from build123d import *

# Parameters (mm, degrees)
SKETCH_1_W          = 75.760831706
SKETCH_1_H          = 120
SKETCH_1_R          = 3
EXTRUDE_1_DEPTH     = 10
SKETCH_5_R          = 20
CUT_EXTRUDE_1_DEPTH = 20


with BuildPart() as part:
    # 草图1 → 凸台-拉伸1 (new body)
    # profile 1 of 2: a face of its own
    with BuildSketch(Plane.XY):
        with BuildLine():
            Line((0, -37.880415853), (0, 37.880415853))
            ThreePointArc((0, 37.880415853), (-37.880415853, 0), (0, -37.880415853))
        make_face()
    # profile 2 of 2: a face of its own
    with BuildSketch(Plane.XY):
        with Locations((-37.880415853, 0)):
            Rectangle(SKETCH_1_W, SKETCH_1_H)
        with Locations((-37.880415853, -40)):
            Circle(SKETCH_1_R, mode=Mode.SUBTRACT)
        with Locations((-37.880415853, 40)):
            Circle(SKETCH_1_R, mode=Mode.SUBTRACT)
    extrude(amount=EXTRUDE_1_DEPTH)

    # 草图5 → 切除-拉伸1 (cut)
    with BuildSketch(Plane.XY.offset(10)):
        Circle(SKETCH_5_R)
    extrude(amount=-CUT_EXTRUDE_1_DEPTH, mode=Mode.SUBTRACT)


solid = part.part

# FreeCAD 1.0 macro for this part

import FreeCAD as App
import Part
import Sketcher


def add_polygon(sketch, points):
    """Adds a closed chain of lines whose ends are joined by coincident constraints."""
    first, n = sketch.GeometryCount, len(points)
    for a, b in zip(points, points[1:] + points[:1]):
        sketch.addGeometry(Part.LineSegment(App.Vector(*a, 0), App.Vector(*b, 0)), False)
    for i in range(n):
        sketch.addConstraint(Sketcher.Constraint("Coincident", first + i, 2, first + (i + 1) % n, 1))

doc = App.newDocument("Part")
params = doc.addObject("Spreadsheet::Sheet", "Params")
for row, (alias, value) in enumerate([
    ("sketch1_diameter", "6 mm"),
    ("sketch1_height", "120 mm"),
    ("pad1_length", "10 mm"),
    ("sketch2_diameter", "40 mm"),
    ("pocket1_length", "20 mm"),
], start=1):
    params.set(f"A{row}", alias)
    params.set(f"B{row}", "=" + value)
    params.setAlias(f"B{row}", alias)

body = doc.addObject("PartDesign::Body", "Body")

# Sketch on XY plane
sketch1 = doc.addObject("Sketcher::SketchObject", "Sketch")
body.addObject(sketch1)
sketch1.AttachmentSupport = (doc.XY_Plane, [""])
sketch1.MapMode = "FlatFace"
add_polygon(sketch1, [(0, 60), (-75.760832, 60), (-75.760832, -60), (0, -60)])  # lines 0-3
sketch1.addGeometry(Part.Circle(App.Vector(-37.880416, 40, 0), App.Vector(0, 0, 1), 3), False)  # 4
sketch1.addGeometry(Part.Circle(App.Vector(-37.880416, -40, 0), App.Vector(0, 0, 1), 3), False)  # 5
sketch1.addConstraint([
    Sketcher.Constraint("Horizontal", 0),
    Sketcher.Constraint("Vertical", 1),
    Sketcher.Constraint("Horizontal", 2),
    Sketcher.Constraint("Vertical", 3),
    Sketcher.Constraint("Equal", 4, 5),
    Sketcher.Constraint("Symmetric", 2, 2, 3, 2, -1, 1),
    Sketcher.Constraint("Symmetric", 4, 3, 5, 3, -1),
    Sketcher.Constraint("Diameter", 4, 6.0),
    Sketcher.Constraint("DistanceY", 1, 2, 1, 1, 120.0),
    Sketcher.Constraint("DistanceY", -1, 1, 4, 3, 40.0),
    Sketcher.Constraint("DistanceX", 0, 2, 0, 1, 75.760832),
    Sketcher.Constraint("DistanceX", 4, 3, -1, 1, 37.880416),
])
sketch1.setExpression("Constraints[11]", "Params.sketch1_diameter")
sketch1.setExpression("Constraints[12]", "Params.sketch1_height")
pad1 = doc.addObject("PartDesign::Pad", "Pad")
body.addObject(pad1)
pad1.Profile = sketch1
pad1.setExpression("Length", "Params.pad1_length")

# Sketch on XY plane
sketch2 = doc.addObject("Sketcher::SketchObject", "Sketch001")
body.addObject(sketch2)
sketch2.AttachmentSupport = (doc.XY_Plane, [""])
sketch2.MapMode = "FlatFace"
sketch2.AttachmentOffset = App.Placement(App.Vector(0, 0, 10), App.Rotation())
sketch2.addGeometry(Part.Circle(App.Vector(0, 0, 0), App.Vector(0, 0, 1), 20), False)
sketch2.addConstraint([
    Sketcher.Constraint("Coincident", 0, 3, -1, 1),
    Sketcher.Constraint("Diameter", 0, 40.0),
])
sketch2.setExpression("Constraints[1]", "Params.sketch2_diameter")
pocket1 = doc.addObject("PartDesign::Pocket", "Pocket")
body.addObject(pocket1)
pocket1.Profile = sketch2
pocket1.setExpression("Length", "Params.pocket1_length")

doc.recompute()
